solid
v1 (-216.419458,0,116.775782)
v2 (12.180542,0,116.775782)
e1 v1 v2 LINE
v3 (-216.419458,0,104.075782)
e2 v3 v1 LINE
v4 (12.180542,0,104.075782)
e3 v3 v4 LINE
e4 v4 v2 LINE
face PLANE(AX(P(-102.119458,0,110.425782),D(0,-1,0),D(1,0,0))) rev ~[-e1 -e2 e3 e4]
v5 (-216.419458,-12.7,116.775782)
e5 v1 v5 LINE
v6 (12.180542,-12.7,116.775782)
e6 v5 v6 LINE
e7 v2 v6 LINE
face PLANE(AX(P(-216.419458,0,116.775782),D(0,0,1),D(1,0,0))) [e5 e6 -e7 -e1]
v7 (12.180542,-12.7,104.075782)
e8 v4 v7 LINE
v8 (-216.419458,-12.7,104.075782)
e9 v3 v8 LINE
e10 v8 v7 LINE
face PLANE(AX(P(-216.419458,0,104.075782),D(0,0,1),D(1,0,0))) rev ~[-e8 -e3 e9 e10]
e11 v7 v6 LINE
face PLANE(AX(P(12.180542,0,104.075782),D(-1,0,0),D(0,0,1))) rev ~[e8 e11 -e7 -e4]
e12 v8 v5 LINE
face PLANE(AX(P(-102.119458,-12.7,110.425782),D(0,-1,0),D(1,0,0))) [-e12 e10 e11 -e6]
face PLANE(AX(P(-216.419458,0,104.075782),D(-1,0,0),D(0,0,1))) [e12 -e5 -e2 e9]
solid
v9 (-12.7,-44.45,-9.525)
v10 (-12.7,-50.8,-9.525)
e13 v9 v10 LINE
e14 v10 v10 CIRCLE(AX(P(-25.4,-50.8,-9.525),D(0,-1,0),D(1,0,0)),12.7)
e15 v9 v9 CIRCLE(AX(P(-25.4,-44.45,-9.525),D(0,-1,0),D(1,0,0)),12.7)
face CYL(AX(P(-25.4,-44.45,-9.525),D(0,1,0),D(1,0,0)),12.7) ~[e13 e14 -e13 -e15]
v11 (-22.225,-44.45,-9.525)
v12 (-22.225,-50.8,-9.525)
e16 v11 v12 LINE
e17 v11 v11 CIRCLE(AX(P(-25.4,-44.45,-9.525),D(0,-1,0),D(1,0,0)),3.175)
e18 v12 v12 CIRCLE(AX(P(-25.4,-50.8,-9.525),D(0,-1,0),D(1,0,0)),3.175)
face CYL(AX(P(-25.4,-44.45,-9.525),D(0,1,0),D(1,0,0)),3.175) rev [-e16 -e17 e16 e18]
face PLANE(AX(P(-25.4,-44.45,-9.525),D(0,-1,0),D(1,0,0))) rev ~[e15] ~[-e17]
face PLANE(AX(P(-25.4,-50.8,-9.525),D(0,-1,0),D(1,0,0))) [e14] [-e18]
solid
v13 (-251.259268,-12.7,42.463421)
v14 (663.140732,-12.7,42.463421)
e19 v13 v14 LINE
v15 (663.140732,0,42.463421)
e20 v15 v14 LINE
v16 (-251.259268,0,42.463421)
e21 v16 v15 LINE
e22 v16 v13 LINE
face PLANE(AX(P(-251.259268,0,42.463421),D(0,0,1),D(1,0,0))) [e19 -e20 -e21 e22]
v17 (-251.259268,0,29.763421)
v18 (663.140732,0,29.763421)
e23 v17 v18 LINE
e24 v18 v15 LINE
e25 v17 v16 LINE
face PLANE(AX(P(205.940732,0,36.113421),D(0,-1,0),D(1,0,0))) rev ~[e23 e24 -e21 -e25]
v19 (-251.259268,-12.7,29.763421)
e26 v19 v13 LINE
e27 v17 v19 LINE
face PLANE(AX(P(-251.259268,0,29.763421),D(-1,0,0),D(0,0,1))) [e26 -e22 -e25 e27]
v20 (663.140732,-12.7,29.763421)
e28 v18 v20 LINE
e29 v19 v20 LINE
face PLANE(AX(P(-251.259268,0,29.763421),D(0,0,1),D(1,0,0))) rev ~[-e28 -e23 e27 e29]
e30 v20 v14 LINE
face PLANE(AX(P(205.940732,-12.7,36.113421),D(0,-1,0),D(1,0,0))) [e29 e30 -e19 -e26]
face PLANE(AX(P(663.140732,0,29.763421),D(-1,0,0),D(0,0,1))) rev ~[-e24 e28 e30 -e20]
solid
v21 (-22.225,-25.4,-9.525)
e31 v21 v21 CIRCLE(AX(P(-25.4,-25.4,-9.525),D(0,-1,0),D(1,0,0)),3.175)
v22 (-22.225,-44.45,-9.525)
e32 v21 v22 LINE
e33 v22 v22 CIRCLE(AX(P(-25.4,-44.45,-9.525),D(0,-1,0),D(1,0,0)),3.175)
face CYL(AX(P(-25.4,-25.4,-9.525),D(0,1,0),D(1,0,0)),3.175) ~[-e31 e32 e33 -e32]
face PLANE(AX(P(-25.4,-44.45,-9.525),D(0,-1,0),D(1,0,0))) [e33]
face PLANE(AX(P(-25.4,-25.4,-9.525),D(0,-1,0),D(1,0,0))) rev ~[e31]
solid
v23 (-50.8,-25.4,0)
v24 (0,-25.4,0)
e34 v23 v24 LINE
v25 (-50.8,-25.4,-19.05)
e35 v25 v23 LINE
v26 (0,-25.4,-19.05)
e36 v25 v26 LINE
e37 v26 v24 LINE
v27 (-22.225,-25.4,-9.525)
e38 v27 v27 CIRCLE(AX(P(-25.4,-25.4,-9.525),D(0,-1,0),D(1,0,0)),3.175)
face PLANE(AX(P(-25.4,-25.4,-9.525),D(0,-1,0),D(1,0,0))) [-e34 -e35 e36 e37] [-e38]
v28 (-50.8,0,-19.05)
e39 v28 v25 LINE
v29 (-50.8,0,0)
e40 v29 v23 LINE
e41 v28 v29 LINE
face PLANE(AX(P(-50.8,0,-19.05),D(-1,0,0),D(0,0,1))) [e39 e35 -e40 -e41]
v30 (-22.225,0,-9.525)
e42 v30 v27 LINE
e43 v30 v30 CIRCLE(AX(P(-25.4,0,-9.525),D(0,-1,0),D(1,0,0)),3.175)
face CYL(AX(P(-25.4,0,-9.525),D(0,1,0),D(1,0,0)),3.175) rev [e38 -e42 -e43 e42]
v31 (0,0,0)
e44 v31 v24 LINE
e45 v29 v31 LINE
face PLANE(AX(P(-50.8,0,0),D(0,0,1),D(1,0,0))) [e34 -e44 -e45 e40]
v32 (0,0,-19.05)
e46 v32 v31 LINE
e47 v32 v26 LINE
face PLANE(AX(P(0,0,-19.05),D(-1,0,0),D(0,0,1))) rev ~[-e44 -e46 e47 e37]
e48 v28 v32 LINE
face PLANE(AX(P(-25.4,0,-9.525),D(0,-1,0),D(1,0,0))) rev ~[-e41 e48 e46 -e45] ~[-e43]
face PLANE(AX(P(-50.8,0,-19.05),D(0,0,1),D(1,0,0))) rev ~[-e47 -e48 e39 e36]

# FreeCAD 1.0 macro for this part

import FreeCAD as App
import Part
import Sketcher
Q = App.Units.Quantity

doc = App.newDocument("Part")
body = doc.addObject("PartDesign::Body", "Body")
body.AllowCompound = True

sketch1 = body.newObject("Sketcher::SketchObject", "Sketch")
sketch1.AttachmentSupport = (doc.getObject("XZ_Plane"), [""])
sketch1.MapMode = "FlatFace"
sketch1.addGeometry(Part.LineSegment(App.Vector(-251, 42, 0), App.Vector(-251, 30, 0)), False)
sketch1.addGeometry(Part.LineSegment(App.Vector(-251, 30, 0), App.Vector(663, 30, 0)), False)
sketch1.addGeometry(Part.LineSegment(App.Vector(663, 30, 0), App.Vector(663, 42, 0)), False)
sketch1.addGeometry(Part.LineSegment(App.Vector(663, 42, 0), App.Vector(-251, 42, 0)), False)
sketch1.addGeometry(Part.LineSegment(App.Vector(-216, 117, 0), App.Vector(-216, 104, 0)), False)
sketch1.addGeometry(Part.LineSegment(App.Vector(-216, 104, 0), App.Vector(12, 104, 0)), False)
sketch1.addGeometry(Part.LineSegment(App.Vector(12, 104, 0), App.Vector(12, 117, 0)), False)
sketch1.addGeometry(Part.LineSegment(App.Vector(12, 117, 0), App.Vector(-216, 117, 0)), False)
sketch1.addConstraint(Sketcher.Constraint("Coincident", 0, 2, 1, 1))
sketch1.addConstraint(Sketcher.Constraint("Coincident", 1, 2, 2, 1))
sketch1.addConstraint(Sketcher.Constraint("Coincident", 2, 2, 3, 1))
sketch1.addConstraint(Sketcher.Constraint("Coincident", 3, 2, 0, 1))
sketch1.addConstraint(Sketcher.Constraint("Coincident", 4, 2, 5, 1))
sketch1.addConstraint(Sketcher.Constraint("Coincident", 5, 2, 6, 1))
sketch1.addConstraint(Sketcher.Constraint("Coincident", 6, 2, 7, 1))
sketch1.addConstraint(Sketcher.Constraint("Coincident", 7, 2, 4, 1))
sketch1.addConstraint(Sketcher.Constraint("Vertical", 0))
sketch1.addConstraint(Sketcher.Constraint("Horizontal", 1))
sketch1.addConstraint(Sketcher.Constraint("Vertical", 2))
sketch1.addConstraint(Sketcher.Constraint("Horizontal", 3))
sketch1.addConstraint(Sketcher.Constraint("Vertical", 4))
sketch1.addConstraint(Sketcher.Constraint("Horizontal", 5))
sketch1.addConstraint(Sketcher.Constraint("Vertical", 6))
sketch1.addConstraint(Sketcher.Constraint("Horizontal", 7))
sketch1.addConstraint(Sketcher.Constraint("Equal", 2, 4))
sketch1.addConstraint(Sketcher.Constraint("DistanceX", 1, 1, 1, 2, Q("36 in")))
sketch1.addConstraint(Sketcher.Constraint("DistanceX", 5, 1, 5, 2, Q("9 in")))
sketch1.addConstraint(Sketcher.Constraint("DistanceY", 0, 2, 0, 1, Q("0.5 in")))
sketch1.addConstraint(Sketcher.Constraint("DistanceX", 0, 2, -1, 1, 251.259268))
sketch1.addConstraint(Sketcher.Constraint("DistanceY", -1, 1, 0, 2, 29.763421))
sketch1.addConstraint(Sketcher.Constraint("DistanceX", 4, 2, -1, 1, 216.419458))
sketch1.addConstraint(Sketcher.Constraint("DistanceY", 3, 2, 4, 2, 61.612361))
pad1 = body.newObject("PartDesign::Pad", "Pad")
pad1.Profile = sketch1
pad1.Length = Q("0.5 in")
body2 = doc.addObject("PartDesign::Body", "Body001")

sketch2 = body2.newObject("Sketcher::SketchObject", "Sketch001")
sketch2.AttachmentSupport = (doc.getObject("XZ_Plane001"), [""])
sketch2.MapMode = "FlatFace"
sketch2.addGeometry(Part.LineSegment(App.Vector(-50.8, 0, 0), App.Vector(-50.8, -19.1, 0)), False)
sketch2.addGeometry(Part.LineSegment(App.Vector(-50.8, -19.1, 0), App.Vector(0, -19.1, 0)), False)
sketch2.addGeometry(Part.LineSegment(App.Vector(0, -19.1, 0), App.Vector(0, 0, 0)), False)
sketch2.addGeometry(Part.LineSegment(App.Vector(0, 0, 0), App.Vector(-50.8, 0, 0)), False)
sketch2.addGeometry(Part.Circle(App.Vector(-25.4, -9.5, 0), App.Vector(0, 0, 1), 3.2), False)
sketch2.addConstraint(Sketcher.Constraint("Coincident", 0, 2, 1, 1))
sketch2.addConstraint(Sketcher.Constraint("Coincident", 1, 2, 2, 1))
sketch2.addConstraint(Sketcher.Constraint("Coincident", 2, 2, 3, 1))
sketch2.addConstraint(Sketcher.Constraint("Coincident", 3, 2, 0, 1))
sketch2.addConstraint(Sketcher.Constraint("Vertical", 0))
sketch2.addConstraint(Sketcher.Constraint("Horizontal", 1))
sketch2.addConstraint(Sketcher.Constraint("Vertical", 2))
sketch2.addConstraint(Sketcher.Constraint("Horizontal", 3))
sketch2.addConstraint(Sketcher.Constraint("Coincident", 2, 2, -1, 1))
sketch2.addConstraint(Sketcher.Constraint("Diameter", 4, Q("0.25 in")))
sketch2.addConstraint(Sketcher.Constraint("DistanceX", 1, 1, 1, 2, Q("2 in")))
sketch2.addConstraint(Sketcher.Constraint("DistanceX", 4, 3, -1, 1, Q("1 in")))
sketch2.addConstraint(Sketcher.Constraint("DistanceY", 0, 2, 0, 1, Q("0.75 in")))
sketch2.addConstraint(Sketcher.Constraint("DistanceY", 4, 3, -1, 1, Q("0.375 in")))
pad2 = body2.newObject("PartDesign::Pad", "Pad001")
pad2.Profile = sketch2
pad2.Length = Q("1 in")
body3 = doc.addObject("PartDesign::Body", "Body002")

sketch3 = body3.newObject("Sketcher::SketchObject", "Sketch002")
sketch3.AttachmentSupport = (doc.getObject("XZ_Plane002"), [""])
sketch3.MapMode = "FlatFace"
sketch3.AttachmentOffset = App.Placement(App.Vector(0, 0, 1 * 25.4), App.Rotation())
sketch3.addGeometry(Part.Circle(App.Vector(-25.4, -9.5, 0), App.Vector(0, 0, 1), 3.2), False)
sketch3.addConstraint(Sketcher.Constraint("Diameter", 0, Q("0.25 in")))
sketch3.addConstraint(Sketcher.Constraint("DistanceX", 0, 3, -1, 1, Q("1 in")))
sketch3.addConstraint(Sketcher.Constraint("DistanceY", 0, 3, -1, 1, Q("0.375 in")))
pad3 = body3.newObject("PartDesign::Pad", "Pad002")
pad3.Profile = sketch3
pad3.Length = Q("0.75 in")
body4 = doc.addObject("PartDesign::Body", "Body003")

sketch4 = body4.newObject("Sketcher::SketchObject", "Sketch003")
sketch4.AttachmentSupport = (doc.getObject("XZ_Plane003"), [""])
sketch4.MapMode = "FlatFace"
sketch4.AttachmentOffset = App.Placement(App.Vector(0, 0, 1.75 * 25.4), App.Rotation())
sketch4.addGeometry(Part.Circle(App.Vector(-25.4, -9.5, 0), App.Vector(0, 0, 1), 12.7), False)
sketch4.addGeometry(Part.Circle(App.Vector(-25.4, -9.5, 0), App.Vector(0, 0, 1), 3.2), False)
sketch4.addConstraint(Sketcher.Constraint("Coincident", 1, 3, 0, 3))
sketch4.addConstraint(Sketcher.Constraint("Diameter", 0, Q("1 in")))
sketch4.addConstraint(Sketcher.Constraint("Diameter", 1, Q("0.25 in")))
sketch4.addConstraint(Sketcher.Constraint("DistanceX", 0, 3, -1, 1, Q("1 in")))
sketch4.addConstraint(Sketcher.Constraint("DistanceY", 0, 3, -1, 1, Q("0.375 in")))
pad4 = body4.newObject("PartDesign::Pad", "Pad003")
pad4.Profile = sketch4
pad4.Length = Q("0.25 in")

doc.recompute()
